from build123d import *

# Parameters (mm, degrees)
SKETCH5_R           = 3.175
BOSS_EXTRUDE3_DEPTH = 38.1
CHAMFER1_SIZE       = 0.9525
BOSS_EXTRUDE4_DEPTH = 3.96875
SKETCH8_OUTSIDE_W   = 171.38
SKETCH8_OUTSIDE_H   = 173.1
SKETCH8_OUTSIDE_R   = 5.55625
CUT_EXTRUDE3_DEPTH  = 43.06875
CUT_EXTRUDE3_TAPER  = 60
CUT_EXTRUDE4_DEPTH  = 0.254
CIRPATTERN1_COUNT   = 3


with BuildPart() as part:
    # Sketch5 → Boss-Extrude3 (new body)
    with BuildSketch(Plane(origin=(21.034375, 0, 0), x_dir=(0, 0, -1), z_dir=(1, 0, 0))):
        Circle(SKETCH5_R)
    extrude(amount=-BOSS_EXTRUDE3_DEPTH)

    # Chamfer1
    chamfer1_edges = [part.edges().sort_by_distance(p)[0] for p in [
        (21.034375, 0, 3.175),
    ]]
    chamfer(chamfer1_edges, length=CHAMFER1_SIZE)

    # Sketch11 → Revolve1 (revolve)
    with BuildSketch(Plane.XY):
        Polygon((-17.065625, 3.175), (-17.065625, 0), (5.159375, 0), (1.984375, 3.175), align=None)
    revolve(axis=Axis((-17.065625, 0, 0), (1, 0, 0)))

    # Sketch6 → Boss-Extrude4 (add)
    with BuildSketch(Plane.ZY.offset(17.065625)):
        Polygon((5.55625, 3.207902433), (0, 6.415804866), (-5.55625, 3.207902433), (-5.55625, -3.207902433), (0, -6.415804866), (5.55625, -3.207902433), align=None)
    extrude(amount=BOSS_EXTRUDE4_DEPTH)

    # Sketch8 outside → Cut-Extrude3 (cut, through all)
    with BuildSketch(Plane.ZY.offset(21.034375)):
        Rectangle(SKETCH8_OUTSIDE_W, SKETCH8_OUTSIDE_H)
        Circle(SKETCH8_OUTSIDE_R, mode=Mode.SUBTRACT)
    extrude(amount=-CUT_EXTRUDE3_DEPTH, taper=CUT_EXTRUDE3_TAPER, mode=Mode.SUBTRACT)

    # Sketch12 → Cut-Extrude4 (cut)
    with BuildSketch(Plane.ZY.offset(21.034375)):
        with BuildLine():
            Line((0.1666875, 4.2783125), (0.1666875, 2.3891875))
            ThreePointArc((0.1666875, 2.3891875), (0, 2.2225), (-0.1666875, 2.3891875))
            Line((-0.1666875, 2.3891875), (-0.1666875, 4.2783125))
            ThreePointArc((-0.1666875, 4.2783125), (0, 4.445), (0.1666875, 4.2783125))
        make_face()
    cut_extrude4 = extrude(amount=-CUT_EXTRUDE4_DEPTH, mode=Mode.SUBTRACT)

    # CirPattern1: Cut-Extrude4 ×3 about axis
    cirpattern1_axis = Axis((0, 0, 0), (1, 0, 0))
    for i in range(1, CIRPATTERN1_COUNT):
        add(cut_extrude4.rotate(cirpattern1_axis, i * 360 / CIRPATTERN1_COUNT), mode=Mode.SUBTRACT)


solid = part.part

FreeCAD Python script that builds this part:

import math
import FreeCAD as App
import Part
import Sketcher
from FreeCAD import Vector
Q = App.Units.Quantity


def edges_at(feature, points):
    """Names of the edges that pass closest to the given points."""
    edges = feature.Shape.Edges
    near = lambda p: min(range(len(edges)), key=lambda i: edges[i].distToShape(Part.Vertex(*p))[0])
    return sorted({f"Edge{near(p) + 1}" for p in points})

doc = App.newDocument("Part")
params = doc.addObject("Spreadsheet::Sheet", "Params")
for row, (alias, value) in enumerate([
    ("sketch1_diameter", "0.25 in"),
    ("pad1_length", "1.5 in"),
    ("chamfer_size", "0.0375 in"),
    ("sketch2_width", "0.75 in"),
    ("sketch2_width2", "0.875 in"),
    ("revolution_angle", "360 deg"),
    ("pad2_length", "0.15625 in"),
    ("sketch4_diameter", "0.4375 in"),
    ("pocket1_length", "43.06875 mm"),
    ("pocket1_taper", "60 deg"),
    ("pocket2_length", "0.01 in"),
], start=1):
    params.set(f"A{row}", alias)
    params.set(f"B{row}", "=" + value)
    params.setAlias(f"B{row}", alias)

body = doc.addObject("PartDesign::Body", "Body")

# Sketch on YZ plane
sketch1 = body.newObject("Sketcher::SketchObject", "Sketch")
sketch1.AttachmentSupport = (doc.getObject("YZ_Plane"), [""])
sketch1.MapMode = "FlatFace"
sketch1.AttachmentOffset = App.Placement(Vector(0, 0, 0.828125 * 25.4), App.Rotation())
sketch1.addGeometry(Part.Circle(Vector(0, 0, 0), Vector(0, 0, 1), 3.2), False)
sketch1.addConstraint([
    Sketcher.Constraint("Coincident", 0, 3, -1, 1),
    Sketcher.Constraint("Diameter", 0, Q("0.25 in")),
])
sketch1.setExpression("Constraints[1]", "Params.sketch1_diameter")
pad1 = body.newObject("PartDesign::Pad", "Pad")
pad1.Profile = sketch1
pad1.setExpression("Length", "Params.pad1_length")
pad1.Reversed = True
doc.recompute()

chamfer = body.newObject("PartDesign::Chamfer", "Chamfer")
chamfer.Base = (pad1, edges_at(pad1, [(21.034, 0, 3.175)]))
chamfer.setExpression("Size", "Params.chamfer_size")

# Sketch on XY plane
sketch2 = body.newObject("Sketcher::SketchObject", "Sketch001")
sketch2.AttachmentSupport = (doc.getObject("XY_Plane"), [""])
sketch2.MapMode = "FlatFace"
sketch2.addGeometry([
    Part.LineSegment(Vector(-17.1, 3.2, 0), Vector(-17.1, 0, 0)),
    Part.LineSegment(Vector(-17.1, 0, 0), Vector(5.2, 0, 0)),
    Part.LineSegment(Vector(5.2, 0, 0), Vector(2, 3.2, 0)),
    Part.LineSegment(Vector(2, 3.2, 0), Vector(-17.1, 3.2, 0)),
], False)
sketch2.addConstraint([
    Sketcher.Constraint("Coincident", 0, 2, 1, 1),
    Sketcher.Constraint("Coincident", 1, 2, 2, 1),
    Sketcher.Constraint("Coincident", 2, 2, 3, 1),
    Sketcher.Constraint("Coincident", 3, 2, 0, 1),
    Sketcher.Constraint("Vertical", 0),
    Sketcher.Constraint("Horizontal", 1),
    Sketcher.Constraint("Horizontal", 3),
    Sketcher.Constraint("PointOnObject", 0, 2, -1),
    Sketcher.Constraint("Angle", 2, Q("135 deg")),
    Sketcher.Constraint("DistanceX", 3, 2, 3, 1, Q("0.75 in")),
    Sketcher.Constraint("DistanceX", 1, 1, 1, 2, Q("0.875 in")),
    Sketcher.Constraint("DistanceX", 0, 2, -1, 1, Q("0.671875 in")),
])
sketch2.setExpression("Constraints[9]", "Params.sketch2_width")
sketch2.setExpression("Constraints[10]", "Params.sketch2_width2")
revolution = body.newObject("PartDesign::Revolution", "Revolution")
revolution.Profile = sketch2
revolution.ReferenceAxis = (sketch2, ["H_Axis"])
revolution.setExpression("Angle", "Params.revolution_angle")

# Sketch on YZ plane
sketch3 = body.newObject("Sketcher::SketchObject", "Sketch002")
sketch3.AttachmentSupport = (doc.getObject("YZ_Plane"), [""])
sketch3.MapMode = "FlatFace"
sketch3.AttachmentOffset = App.Placement(Vector(0, 0, -0.671875 * 25.4), App.Rotation())
sketch3.addGeometry([
    Part.LineSegment(Vector(3, 6, 0), Vector(6, 0, 0)),  # 0
    Part.LineSegment(Vector(6, 0, 0), Vector(3, -6, 0)),  # 1
    Part.LineSegment(Vector(3, -6, 0), Vector(-3, -6, 0)),  # 2
    Part.LineSegment(Vector(-3, -6, 0), Vector(-6, 0, 0)),  # 3
    Part.LineSegment(Vector(-6, 0, 0), Vector(-3, 6, 0)),  # 4
    Part.LineSegment(Vector(-3, 6, 0), Vector(3, 6, 0)),  # 5
], False)
sketch3.addConstraint([
    Sketcher.Constraint("Coincident", 0, 2, 1, 1),
    Sketcher.Constraint("Coincident", 1, 2, 2, 1),
    Sketcher.Constraint("Coincident", 2, 2, 3, 1),
    Sketcher.Constraint("Coincident", 3, 2, 4, 1),
    Sketcher.Constraint("Coincident", 4, 2, 5, 1),
    Sketcher.Constraint("Coincident", 5, 2, 0, 1),
    Sketcher.Constraint("Horizontal", 2),
    Sketcher.Constraint("Horizontal", 5),
    Sketcher.Constraint("Symmetric", 0, 2, 3, 2, -1, 1),
    Sketcher.Constraint("Symmetric", 1, 2, 4, 2, -1, 1),
    Sketcher.Constraint("PointOnObject", 0, 2, -1),
    Sketcher.Constraint("Parallel", 0, 3),
    Sketcher.Constraint("Vertical", 2, 2, 4, 2),
    Sketcher.Constraint("Angle", 0, Q("-60 deg")),
    Sketcher.Constraint("DistanceY", 1, 2, -1, 1, Q("0.21875 in")),
    Sketcher.Constraint("DistanceX", 2, 2, 2, 1, Q("6.415805 mm")),
])
pad2 = body.newObject("PartDesign::Pad", "Pad001")
pad2.Profile = sketch3
pad2.setExpression("Length", "Params.pad2_length")
pad2.Reversed = True

# Sketch on YZ plane
sketch4 = body.newObject("Sketcher::SketchObject", "Sketch003")
sketch4.AttachmentSupport = (doc.getObject("YZ_Plane"), [""])
sketch4.MapMode = "FlatFace"
sketch4.AttachmentOffset = App.Placement(Vector(0, 0, -0.828125 * 25.4), App.Rotation())
sketch4.addGeometry([
    Part.LineSegment(Vector(87, -86, 0), Vector(-87, -86, 0)),  # 0
    Part.LineSegment(Vector(-87, -86, 0), Vector(-87, 86, 0)),  # 1
    Part.LineSegment(Vector(-87, 86, 0), Vector(87, 86, 0)),  # 2
    Part.LineSegment(Vector(87, 86, 0), Vector(87, -86, 0)),  # 3
    Part.Circle(Vector(0, 0, 0), Vector(0, 0, 1), 6),  # 4
], False)
sketch4.addConstraint([
    Sketcher.Constraint("Coincident", 0, 2, 1, 1),
    Sketcher.Constraint("Coincident", 1, 2, 2, 1),
    Sketcher.Constraint("Coincident", 2, 2, 3, 1),
    Sketcher.Constraint("Coincident", 3, 2, 0, 1),
    Sketcher.Constraint("Horizontal", 0),
    Sketcher.Constraint("Vertical", 1),
    Sketcher.Constraint("Horizontal", 2),
    Sketcher.Constraint("Vertical", 3),
    Sketcher.Constraint("Coincident", 4, 3, -1, 1),
    Sketcher.Constraint("Symmetric", 0, 2, 2, 2, -1, 1),
    Sketcher.Constraint("Diameter", 4, Q("0.4375 in")),
    Sketcher.Constraint("DistanceX", 0, 2, 0, 1, Q("173.1 mm")),
    Sketcher.Constraint("DistanceY", 1, 1, 1, 2, Q("171.38 mm")),
])
sketch4.setExpression("Constraints[10]", "Params.sketch4_diameter")
pocket1 = body.newObject("PartDesign::Pocket", "Pocket")
pocket1.Profile = sketch4
pocket1.setExpression("Length", "Params.pocket1_length")
pocket1.Reversed = True
pocket1.setExpression("TaperAngle", "Params.pocket1_taper")

# Sketch on YZ plane
sketch5 = body.newObject("Sketcher::SketchObject", "Sketch004")
sketch5.AttachmentSupport = (doc.getObject("YZ_Plane"), [""])
sketch5.MapMode = "FlatFace"
sketch5.AttachmentOffset = App.Placement(Vector(0, 0, -0.828125 * 25.4), App.Rotation())
sketch5.addGeometry([
    Part.LineSegment(Vector(2.39, 0.17, 0), Vector(4.28, 0.17, 0)),
    Part.ArcOfCircle(Part.Circle(Vector(4.28, 0, 0), Vector(0, 0, 1), 0.17), math.radians(-90), math.radians(90)),
    Part.LineSegment(Vector(4.28, -0.17, 0), Vector(2.39, -0.17, 0)),
    Part.ArcOfCircle(Part.Circle(Vector(2.39, 0, 0), Vector(0, 0, 1), 0.17), math.radians(90), math.radians(270)),
], False)
sketch5.addConstraint([
    Sketcher.Constraint("Tangent", 0, 2, 1, 2),
    Sketcher.Constraint("Tangent", 1, 1, 2, 1),
    Sketcher.Constraint("Tangent", 2, 2, 3, 2),
    Sketcher.Constraint("Tangent", 3, 1, 0, 1),
    Sketcher.Constraint("Horizontal", 0),
    Sketcher.Constraint("Horizontal", 2),
    Sketcher.Constraint("PointOnObject", 1, 3, -1),
    Sketcher.Constraint("Radius", 1, Q("0.166687 mm")),
    Sketcher.Constraint("DistanceX", 0, 1, 0, 2, Q("1.889125 mm")),
    Sketcher.Constraint("DistanceX", -1, 1, 1, 3, Q("4.278313 mm")),
])
pocket2 = body.newObject("PartDesign::Pocket", "Pocket001")
pocket2.Profile = sketch5
pocket2.setExpression("Length", "Params.pocket2_length")
pocket2.Reversed = True
doc.recompute()

polarpattern = body.newObject("PartDesign::PolarPattern", "PolarPattern")
polarpattern.Originals = [pocket2]
polarpattern.Axis = (doc.getObject("X_Axis"), [""])
polarpattern.Angle = 360
polarpattern.Occurrences = 3
body.Tip = polarpattern

doc.recompute()
